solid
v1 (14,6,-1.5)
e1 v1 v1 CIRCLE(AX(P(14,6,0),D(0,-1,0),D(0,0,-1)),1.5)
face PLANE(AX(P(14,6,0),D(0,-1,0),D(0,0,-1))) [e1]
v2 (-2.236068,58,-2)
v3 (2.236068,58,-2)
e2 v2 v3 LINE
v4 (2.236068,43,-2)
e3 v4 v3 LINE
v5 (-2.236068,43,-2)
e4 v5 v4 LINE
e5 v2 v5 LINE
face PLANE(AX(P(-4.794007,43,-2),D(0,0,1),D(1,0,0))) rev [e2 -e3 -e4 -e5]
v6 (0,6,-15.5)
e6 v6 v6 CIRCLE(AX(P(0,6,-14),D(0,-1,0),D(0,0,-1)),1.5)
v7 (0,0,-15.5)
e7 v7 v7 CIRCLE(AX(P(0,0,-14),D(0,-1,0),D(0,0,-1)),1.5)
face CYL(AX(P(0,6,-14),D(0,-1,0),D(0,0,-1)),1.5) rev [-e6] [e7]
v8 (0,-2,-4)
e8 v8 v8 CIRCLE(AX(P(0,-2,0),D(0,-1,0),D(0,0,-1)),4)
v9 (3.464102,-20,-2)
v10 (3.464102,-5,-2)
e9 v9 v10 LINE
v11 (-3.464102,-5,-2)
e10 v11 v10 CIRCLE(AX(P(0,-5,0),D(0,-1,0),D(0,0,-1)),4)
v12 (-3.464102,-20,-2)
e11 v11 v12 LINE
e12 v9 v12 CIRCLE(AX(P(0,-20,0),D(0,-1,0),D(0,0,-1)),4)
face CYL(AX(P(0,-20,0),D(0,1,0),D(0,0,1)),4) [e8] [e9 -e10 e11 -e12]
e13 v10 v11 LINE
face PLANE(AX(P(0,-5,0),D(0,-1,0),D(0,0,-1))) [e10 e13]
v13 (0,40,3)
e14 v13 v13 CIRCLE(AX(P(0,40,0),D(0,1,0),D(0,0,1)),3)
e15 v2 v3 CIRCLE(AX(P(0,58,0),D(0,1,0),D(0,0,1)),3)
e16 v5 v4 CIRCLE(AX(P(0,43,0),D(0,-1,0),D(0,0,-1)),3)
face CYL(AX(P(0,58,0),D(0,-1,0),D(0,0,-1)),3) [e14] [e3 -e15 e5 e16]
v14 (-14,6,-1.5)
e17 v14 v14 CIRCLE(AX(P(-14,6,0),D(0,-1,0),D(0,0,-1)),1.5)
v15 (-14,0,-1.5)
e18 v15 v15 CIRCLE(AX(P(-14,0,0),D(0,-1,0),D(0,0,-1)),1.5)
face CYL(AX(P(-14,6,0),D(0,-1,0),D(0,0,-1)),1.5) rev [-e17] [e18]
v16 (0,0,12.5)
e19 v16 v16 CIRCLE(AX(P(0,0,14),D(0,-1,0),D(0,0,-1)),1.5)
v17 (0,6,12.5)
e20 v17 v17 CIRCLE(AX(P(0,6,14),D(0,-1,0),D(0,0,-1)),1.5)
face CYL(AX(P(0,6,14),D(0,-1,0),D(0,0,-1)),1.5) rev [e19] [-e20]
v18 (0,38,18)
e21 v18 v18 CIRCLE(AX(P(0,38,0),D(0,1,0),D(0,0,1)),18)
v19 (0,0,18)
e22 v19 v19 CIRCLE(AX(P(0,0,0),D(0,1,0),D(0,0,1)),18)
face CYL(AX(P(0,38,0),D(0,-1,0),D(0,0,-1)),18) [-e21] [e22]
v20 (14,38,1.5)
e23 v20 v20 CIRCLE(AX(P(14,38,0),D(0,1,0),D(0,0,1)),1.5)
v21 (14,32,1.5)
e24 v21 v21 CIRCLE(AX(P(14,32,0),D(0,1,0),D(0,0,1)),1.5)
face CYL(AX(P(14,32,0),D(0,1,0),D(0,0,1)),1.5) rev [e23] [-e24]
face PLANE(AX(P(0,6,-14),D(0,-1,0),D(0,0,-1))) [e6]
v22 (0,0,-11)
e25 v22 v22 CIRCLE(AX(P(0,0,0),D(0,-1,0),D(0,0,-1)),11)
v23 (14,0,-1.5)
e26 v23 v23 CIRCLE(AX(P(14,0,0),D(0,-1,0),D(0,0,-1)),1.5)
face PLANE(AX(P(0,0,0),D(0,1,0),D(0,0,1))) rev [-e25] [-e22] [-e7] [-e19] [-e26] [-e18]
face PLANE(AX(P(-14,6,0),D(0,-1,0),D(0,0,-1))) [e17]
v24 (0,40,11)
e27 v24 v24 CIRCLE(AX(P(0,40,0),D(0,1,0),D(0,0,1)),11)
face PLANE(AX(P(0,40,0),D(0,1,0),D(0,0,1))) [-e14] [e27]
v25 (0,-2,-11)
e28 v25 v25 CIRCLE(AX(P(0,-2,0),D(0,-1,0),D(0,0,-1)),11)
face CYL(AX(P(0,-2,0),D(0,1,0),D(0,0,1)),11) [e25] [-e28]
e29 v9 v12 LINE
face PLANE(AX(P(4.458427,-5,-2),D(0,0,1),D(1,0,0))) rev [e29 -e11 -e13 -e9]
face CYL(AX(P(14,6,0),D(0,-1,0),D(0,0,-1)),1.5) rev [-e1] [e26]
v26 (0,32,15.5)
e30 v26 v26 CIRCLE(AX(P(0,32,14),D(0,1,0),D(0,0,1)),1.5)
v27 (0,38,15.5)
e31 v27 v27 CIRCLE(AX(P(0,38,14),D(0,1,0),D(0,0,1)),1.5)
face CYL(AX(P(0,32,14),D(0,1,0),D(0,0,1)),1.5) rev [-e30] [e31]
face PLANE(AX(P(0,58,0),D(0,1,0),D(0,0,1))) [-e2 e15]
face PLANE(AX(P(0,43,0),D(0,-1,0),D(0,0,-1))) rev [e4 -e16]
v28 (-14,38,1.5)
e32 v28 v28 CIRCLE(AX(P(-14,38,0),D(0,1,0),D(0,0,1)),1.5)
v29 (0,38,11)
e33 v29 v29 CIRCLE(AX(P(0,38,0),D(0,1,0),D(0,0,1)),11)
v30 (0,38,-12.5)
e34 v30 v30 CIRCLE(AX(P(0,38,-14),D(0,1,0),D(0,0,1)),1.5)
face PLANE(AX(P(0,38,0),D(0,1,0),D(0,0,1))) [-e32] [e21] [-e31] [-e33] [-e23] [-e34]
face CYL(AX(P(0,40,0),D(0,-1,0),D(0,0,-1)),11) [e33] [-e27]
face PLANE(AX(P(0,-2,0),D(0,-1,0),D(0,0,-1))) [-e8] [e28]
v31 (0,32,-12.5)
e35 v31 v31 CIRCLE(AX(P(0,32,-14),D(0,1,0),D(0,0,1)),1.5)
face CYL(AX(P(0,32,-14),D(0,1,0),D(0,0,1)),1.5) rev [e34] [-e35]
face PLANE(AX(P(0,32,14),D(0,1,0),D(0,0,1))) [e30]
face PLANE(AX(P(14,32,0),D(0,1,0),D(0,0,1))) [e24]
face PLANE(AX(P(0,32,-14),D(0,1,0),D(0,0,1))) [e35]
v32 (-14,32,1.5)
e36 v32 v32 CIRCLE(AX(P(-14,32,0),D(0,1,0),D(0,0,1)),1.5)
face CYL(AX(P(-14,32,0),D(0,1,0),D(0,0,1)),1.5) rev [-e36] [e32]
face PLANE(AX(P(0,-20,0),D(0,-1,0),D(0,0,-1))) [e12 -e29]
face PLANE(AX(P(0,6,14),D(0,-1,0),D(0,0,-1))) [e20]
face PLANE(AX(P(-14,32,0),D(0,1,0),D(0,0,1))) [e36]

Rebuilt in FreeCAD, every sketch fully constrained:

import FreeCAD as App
import Part
import Sketcher
from FreeCAD import Vector
Q = App.Units.Quantity

doc = App.newDocument("Part")
body = doc.addObject("PartDesign::Body", "Body")

sketch1 = doc.addObject("Sketcher::SketchObject", "Sketch")
body.addObject(sketch1)
sketch1.AttachmentSupport = (doc.XZ_Plane, [""])
sketch1.MapMode = "FlatFace"
sketch1.addGeometry(Part.Circle(Vector(0, 0, 0), Vector(0, 0, 1), 18), False)
sketch1.addConstraint([
    Sketcher.Constraint("Coincident", 0, 3, -1, 1),
    Sketcher.Constraint("Diameter", 0, Q("36 mm")),
])
pad1 = doc.addObject("PartDesign::Pad", "Pad")
body.addObject(pad1)
pad1.Profile = sketch1
pad1.Length = 38
pad1.Reversed = True

sketch2 = doc.addObject("Sketcher::SketchObject", "Sketch001")
body.addObject(sketch2)
sketch2.AttachmentSupport = (doc.XZ_Plane, [""])
sketch2.MapMode = "FlatFace"
sketch2.AttachmentOffset = App.Placement(Vector(0, 0, -38), App.Rotation())
sketch2.addGeometry(Part.Circle(Vector(0, 0, 0), Vector(0, 0, 1), 11), False)
sketch2.addConstraint([
    Sketcher.Constraint("Coincident", 0, 3, -1, 1),
    Sketcher.Constraint("Diameter", 0, Q("22 mm")),
])
pad2 = doc.addObject("PartDesign::Pad", "Pad001")
body.addObject(pad2)
pad2.Profile = sketch2
pad2.Length = 2
pad2.Reversed = True

sketch3 = doc.addObject("Sketcher::SketchObject", "Sketch002")
body.addObject(sketch3)
sketch3.AttachmentSupport = (doc.XZ_Plane, [""])
sketch3.MapMode = "FlatFace"
sketch3.AttachmentOffset = App.Placement(Vector(0, 0, 2), App.Rotation())
sketch3.addGeometry(Part.Circle(Vector(0, 0, 0), Vector(0, 0, 1), 11), False)
sketch3.addConstraint([
    Sketcher.Constraint("Coincident", 0, 3, -1, 1),
    Sketcher.Constraint("Diameter", 0, Q("22 mm")),
])
pad3 = doc.addObject("PartDesign::Pad", "Pad002")
body.addObject(pad3)
pad3.Profile = sketch3
pad3.Length = 2
pad3.Reversed = True

sketch4 = doc.addObject("Sketcher::SketchObject", "Sketch003")
body.addObject(sketch4)
sketch4.AttachmentSupport = (doc.XZ_Plane, [""])
sketch4.MapMode = "FlatFace"
sketch4.AttachmentOffset = App.Placement(Vector(0, 0, 2), App.Rotation())
sketch4.addGeometry(Part.Circle(Vector(0, 0, 0), Vector(0, 0, 1), 4), False)
sketch4.addConstraint([
    Sketcher.Constraint("Coincident", 0, 3, -1, 1),
    Sketcher.Constraint("Diameter", 0, Q("8 mm")),
])
pad4 = doc.addObject("PartDesign::Pad", "Pad003")
body.addObject(pad4)
pad4.Profile = sketch4
pad4.Length = 18

sketch5 = doc.addObject("Sketcher::SketchObject", "Sketch004")
body.addObject(sketch5)
sketch5.AttachmentSupport = (doc.XZ_Plane, [""])
sketch5.MapMode = "FlatFace"
sketch5.AttachmentOffset = App.Placement(Vector(0, 0, -40), App.Rotation())
sketch5.addGeometry(Part.Circle(Vector(0, 0, 0), Vector(0, 0, 1), 3), False)
sketch5.addConstraint([
    Sketcher.Constraint("Coincident", 0, 3, -1, 1),
    Sketcher.Constraint("Diameter", 0, Q("6 mm")),
])
pad5 = doc.addObject("PartDesign::Pad", "Pad004")
body.addObject(pad5)
pad5.Profile = sketch5
pad5.Length = 18
pad5.Reversed = True

sketch6 = doc.addObject("Sketcher::SketchObject", "Sketch005")
body.addObject(sketch6)
sketch6.AttachmentSupport = (doc.XZ_Plane, [""])
sketch6.MapMode = "FlatFace"
sketch6.AttachmentOffset = App.Placement(Vector(0, 0, -58), App.Rotation())
sketch6.addGeometry([
    Part.LineSegment(Vector(-4.8, -6.6, 0), Vector(-4.8, -2, 0)),
    Part.LineSegment(Vector(-4.8, -2, 0), Vector(4.5, -2, 0)),
    Part.LineSegment(Vector(4.5, -2, 0), Vector(4.5, -6.6, 0)),
    Part.LineSegment(Vector(4.5, -6.6, 0), Vector(-4.8, -6.6, 0)),
], False)
sketch6.addConstraint([
    Sketcher.Constraint("Coincident", 0, 2, 1, 1),
    Sketcher.Constraint("Coincident", 1, 2, 2, 1),
    Sketcher.Constraint("Coincident", 2, 2, 3, 1),
    Sketcher.Constraint("Coincident", 3, 2, 0, 1),
    Sketcher.Constraint("Vertical", 0),
    Sketcher.Constraint("Horizontal", 1),
    Sketcher.Constraint("Vertical", 2),
    Sketcher.Constraint("Horizontal", 3),
    Sketcher.Constraint("DistanceY", 0, 2, -1, 1, Q("2 mm")),
    Sketcher.Constraint("DistanceX", 1, 1, 1, 2, Q("9.252434 mm")),
    Sketcher.Constraint("DistanceY", 0, 1, 0, 2, Q("4.602247 mm")),
    Sketcher.Constraint("DistanceX", 0, 2, -1, 1, Q("4.794007 mm")),
])
pocket1 = doc.addObject("PartDesign::Pocket", "Pocket")
body.addObject(pocket1)
pocket1.Profile = sketch6
pocket1.Length = 15
pocket1.Reversed = True

sketch7 = doc.addObject("Sketcher::SketchObject", "Sketch006")
body.addObject(sketch7)
sketch7.AttachmentSupport = (doc.XZ_Plane, [""])
sketch7.MapMode = "FlatFace"
sketch7.AttachmentOffset = App.Placement(Vector(0, 0, 20), App.Rotation())
sketch7.addGeometry([
    Part.LineSegment(Vector(-4.8, -2, 0), Vector(-4.8, -6.6, 0)),
    Part.LineSegment(Vector(-4.8, -6.6, 0), Vector(4.5, -6.6, 0)),
    Part.LineSegment(Vector(4.5, -6.6, 0), Vector(4.5, -2, 0)),
    Part.LineSegment(Vector(4.5, -2, 0), Vector(-4.8, -2, 0)),
], False)
sketch7.addConstraint([
    Sketcher.Constraint("Coincident", 0, 2, 1, 1),
    Sketcher.Constraint("Coincident", 1, 2, 2, 1),
    Sketcher.Constraint("Coincident", 2, 2, 3, 1),
    Sketcher.Constraint("Coincident", 3, 2, 0, 1),
    Sketcher.Constraint("Vertical", 0),
    Sketcher.Constraint("Horizontal", 1),
    Sketcher.Constraint("Vertical", 2),
    Sketcher.Constraint("Horizontal", 3),
    Sketcher.Constraint("DistanceY", 2, 2, -1, 1, Q("2 mm")),
    Sketcher.Constraint("DistanceX", 1, 1, 1, 2, Q("9.252434 mm")),
    Sketcher.Constraint("DistanceY", 0, 2, 0, 1, Q("4.602247 mm")),
    Sketcher.Constraint("DistanceX", 0, 2, -1, 1, Q("4.794007 mm")),
])
pocket2 = doc.addObject("PartDesign::Pocket", "Pocket001")
body.addObject(pocket2)
pocket2.Profile = sketch7
pocket2.Length = 15

sketch8 = doc.addObject("Sketcher::SketchObject", "Sketch007")
body.addObject(sketch8)
sketch8.AttachmentSupport = (doc.XZ_Plane, [""])
sketch8.MapMode = "FlatFace"
sketch8.addGeometry([
    Part.Circle(Vector(0, 14, 0), Vector(0, 0, 1), 1.5),
    Part.Circle(Vector(14, 0, 0), Vector(0, 0, 1), 1.5),
    Part.Circle(Vector(0, -14, 0), Vector(0, 0, 1), 1.5),
    Part.Circle(Vector(-14, 0, 0), Vector(0, 0, 1), 1.5),
], False)
sketch8.addConstraint([
    Sketcher.Constraint("Equal", 0, 1),
    Sketcher.Constraint("Equal", 1, 2),
    Sketcher.Constraint("Equal", 2, 3),
    Sketcher.Constraint("Symmetric", 0, 3, 2, 3, -1, 1),
    Sketcher.Constraint("Symmetric", 1, 3, 3, 3, -1, 1),
    Sketcher.Constraint("PointOnObject", 0, 3, -2),
    Sketcher.Constraint("PointOnObject", 1, 3, -1),
    Sketcher.Constraint("Diameter", 0, Q("3 mm")),
    Sketcher.Constraint("DistanceY", -1, 1, 0, 3, Q("14 mm")),
    Sketcher.Constraint("DistanceX", -1, 1, 1, 3, Q("14 mm")),
])
pocket3 = doc.addObject("PartDesign::Pocket", "Pocket002")
body.addObject(pocket3)
pocket3.Profile = sketch8
pocket3.Length = 6

sketch9 = doc.addObject("Sketcher::SketchObject", "Sketch008")
body.addObject(sketch9)
sketch9.AttachmentSupport = (doc.XZ_Plane, [""])
sketch9.MapMode = "FlatFace"
sketch9.AttachmentOffset = App.Placement(Vector(0, 0, -32), App.Rotation())
sketch9.addGeometry([
    Part.Circle(Vector(-14, 0, 0), Vector(0, 0, 1), 1.5),
    Part.Circle(Vector(0, -14, 0), Vector(0, 0, 1), 1.5),
    Part.Circle(Vector(14, 0, 0), Vector(0, 0, 1), 1.5),
    Part.Circle(Vector(0, 14, 0), Vector(0, 0, 1), 1.5),
], False)
sketch9.addConstraint([
    Sketcher.Constraint("Equal", 0, 1),
    Sketcher.Constraint("Equal", 1, 2),
    Sketcher.Constraint("Equal", 2, 3),
    Sketcher.Constraint("Symmetric", 0, 3, 2, 3, -1, 1),
    Sketcher.Constraint("Symmetric", 1, 3, 3, 3, -1, 1),
    Sketcher.Constraint("PointOnObject", 0, 3, -1),
    Sketcher.Constraint("PointOnObject", 1, 3, -2),
    Sketcher.Constraint("Diameter", 0, Q("3 mm")),
    Sketcher.Constraint("DistanceX", 0, 3, -1, 1, Q("14 mm")),
    Sketcher.Constraint("DistanceY", 1, 3, -1, 1, Q("14 mm")),
])
pocket4 = doc.addObject("PartDesign::Pocket", "Pocket003")
body.addObject(pocket4)
pocket4.Profile = sketch9
pocket4.Length = 6

doc.recompute()
